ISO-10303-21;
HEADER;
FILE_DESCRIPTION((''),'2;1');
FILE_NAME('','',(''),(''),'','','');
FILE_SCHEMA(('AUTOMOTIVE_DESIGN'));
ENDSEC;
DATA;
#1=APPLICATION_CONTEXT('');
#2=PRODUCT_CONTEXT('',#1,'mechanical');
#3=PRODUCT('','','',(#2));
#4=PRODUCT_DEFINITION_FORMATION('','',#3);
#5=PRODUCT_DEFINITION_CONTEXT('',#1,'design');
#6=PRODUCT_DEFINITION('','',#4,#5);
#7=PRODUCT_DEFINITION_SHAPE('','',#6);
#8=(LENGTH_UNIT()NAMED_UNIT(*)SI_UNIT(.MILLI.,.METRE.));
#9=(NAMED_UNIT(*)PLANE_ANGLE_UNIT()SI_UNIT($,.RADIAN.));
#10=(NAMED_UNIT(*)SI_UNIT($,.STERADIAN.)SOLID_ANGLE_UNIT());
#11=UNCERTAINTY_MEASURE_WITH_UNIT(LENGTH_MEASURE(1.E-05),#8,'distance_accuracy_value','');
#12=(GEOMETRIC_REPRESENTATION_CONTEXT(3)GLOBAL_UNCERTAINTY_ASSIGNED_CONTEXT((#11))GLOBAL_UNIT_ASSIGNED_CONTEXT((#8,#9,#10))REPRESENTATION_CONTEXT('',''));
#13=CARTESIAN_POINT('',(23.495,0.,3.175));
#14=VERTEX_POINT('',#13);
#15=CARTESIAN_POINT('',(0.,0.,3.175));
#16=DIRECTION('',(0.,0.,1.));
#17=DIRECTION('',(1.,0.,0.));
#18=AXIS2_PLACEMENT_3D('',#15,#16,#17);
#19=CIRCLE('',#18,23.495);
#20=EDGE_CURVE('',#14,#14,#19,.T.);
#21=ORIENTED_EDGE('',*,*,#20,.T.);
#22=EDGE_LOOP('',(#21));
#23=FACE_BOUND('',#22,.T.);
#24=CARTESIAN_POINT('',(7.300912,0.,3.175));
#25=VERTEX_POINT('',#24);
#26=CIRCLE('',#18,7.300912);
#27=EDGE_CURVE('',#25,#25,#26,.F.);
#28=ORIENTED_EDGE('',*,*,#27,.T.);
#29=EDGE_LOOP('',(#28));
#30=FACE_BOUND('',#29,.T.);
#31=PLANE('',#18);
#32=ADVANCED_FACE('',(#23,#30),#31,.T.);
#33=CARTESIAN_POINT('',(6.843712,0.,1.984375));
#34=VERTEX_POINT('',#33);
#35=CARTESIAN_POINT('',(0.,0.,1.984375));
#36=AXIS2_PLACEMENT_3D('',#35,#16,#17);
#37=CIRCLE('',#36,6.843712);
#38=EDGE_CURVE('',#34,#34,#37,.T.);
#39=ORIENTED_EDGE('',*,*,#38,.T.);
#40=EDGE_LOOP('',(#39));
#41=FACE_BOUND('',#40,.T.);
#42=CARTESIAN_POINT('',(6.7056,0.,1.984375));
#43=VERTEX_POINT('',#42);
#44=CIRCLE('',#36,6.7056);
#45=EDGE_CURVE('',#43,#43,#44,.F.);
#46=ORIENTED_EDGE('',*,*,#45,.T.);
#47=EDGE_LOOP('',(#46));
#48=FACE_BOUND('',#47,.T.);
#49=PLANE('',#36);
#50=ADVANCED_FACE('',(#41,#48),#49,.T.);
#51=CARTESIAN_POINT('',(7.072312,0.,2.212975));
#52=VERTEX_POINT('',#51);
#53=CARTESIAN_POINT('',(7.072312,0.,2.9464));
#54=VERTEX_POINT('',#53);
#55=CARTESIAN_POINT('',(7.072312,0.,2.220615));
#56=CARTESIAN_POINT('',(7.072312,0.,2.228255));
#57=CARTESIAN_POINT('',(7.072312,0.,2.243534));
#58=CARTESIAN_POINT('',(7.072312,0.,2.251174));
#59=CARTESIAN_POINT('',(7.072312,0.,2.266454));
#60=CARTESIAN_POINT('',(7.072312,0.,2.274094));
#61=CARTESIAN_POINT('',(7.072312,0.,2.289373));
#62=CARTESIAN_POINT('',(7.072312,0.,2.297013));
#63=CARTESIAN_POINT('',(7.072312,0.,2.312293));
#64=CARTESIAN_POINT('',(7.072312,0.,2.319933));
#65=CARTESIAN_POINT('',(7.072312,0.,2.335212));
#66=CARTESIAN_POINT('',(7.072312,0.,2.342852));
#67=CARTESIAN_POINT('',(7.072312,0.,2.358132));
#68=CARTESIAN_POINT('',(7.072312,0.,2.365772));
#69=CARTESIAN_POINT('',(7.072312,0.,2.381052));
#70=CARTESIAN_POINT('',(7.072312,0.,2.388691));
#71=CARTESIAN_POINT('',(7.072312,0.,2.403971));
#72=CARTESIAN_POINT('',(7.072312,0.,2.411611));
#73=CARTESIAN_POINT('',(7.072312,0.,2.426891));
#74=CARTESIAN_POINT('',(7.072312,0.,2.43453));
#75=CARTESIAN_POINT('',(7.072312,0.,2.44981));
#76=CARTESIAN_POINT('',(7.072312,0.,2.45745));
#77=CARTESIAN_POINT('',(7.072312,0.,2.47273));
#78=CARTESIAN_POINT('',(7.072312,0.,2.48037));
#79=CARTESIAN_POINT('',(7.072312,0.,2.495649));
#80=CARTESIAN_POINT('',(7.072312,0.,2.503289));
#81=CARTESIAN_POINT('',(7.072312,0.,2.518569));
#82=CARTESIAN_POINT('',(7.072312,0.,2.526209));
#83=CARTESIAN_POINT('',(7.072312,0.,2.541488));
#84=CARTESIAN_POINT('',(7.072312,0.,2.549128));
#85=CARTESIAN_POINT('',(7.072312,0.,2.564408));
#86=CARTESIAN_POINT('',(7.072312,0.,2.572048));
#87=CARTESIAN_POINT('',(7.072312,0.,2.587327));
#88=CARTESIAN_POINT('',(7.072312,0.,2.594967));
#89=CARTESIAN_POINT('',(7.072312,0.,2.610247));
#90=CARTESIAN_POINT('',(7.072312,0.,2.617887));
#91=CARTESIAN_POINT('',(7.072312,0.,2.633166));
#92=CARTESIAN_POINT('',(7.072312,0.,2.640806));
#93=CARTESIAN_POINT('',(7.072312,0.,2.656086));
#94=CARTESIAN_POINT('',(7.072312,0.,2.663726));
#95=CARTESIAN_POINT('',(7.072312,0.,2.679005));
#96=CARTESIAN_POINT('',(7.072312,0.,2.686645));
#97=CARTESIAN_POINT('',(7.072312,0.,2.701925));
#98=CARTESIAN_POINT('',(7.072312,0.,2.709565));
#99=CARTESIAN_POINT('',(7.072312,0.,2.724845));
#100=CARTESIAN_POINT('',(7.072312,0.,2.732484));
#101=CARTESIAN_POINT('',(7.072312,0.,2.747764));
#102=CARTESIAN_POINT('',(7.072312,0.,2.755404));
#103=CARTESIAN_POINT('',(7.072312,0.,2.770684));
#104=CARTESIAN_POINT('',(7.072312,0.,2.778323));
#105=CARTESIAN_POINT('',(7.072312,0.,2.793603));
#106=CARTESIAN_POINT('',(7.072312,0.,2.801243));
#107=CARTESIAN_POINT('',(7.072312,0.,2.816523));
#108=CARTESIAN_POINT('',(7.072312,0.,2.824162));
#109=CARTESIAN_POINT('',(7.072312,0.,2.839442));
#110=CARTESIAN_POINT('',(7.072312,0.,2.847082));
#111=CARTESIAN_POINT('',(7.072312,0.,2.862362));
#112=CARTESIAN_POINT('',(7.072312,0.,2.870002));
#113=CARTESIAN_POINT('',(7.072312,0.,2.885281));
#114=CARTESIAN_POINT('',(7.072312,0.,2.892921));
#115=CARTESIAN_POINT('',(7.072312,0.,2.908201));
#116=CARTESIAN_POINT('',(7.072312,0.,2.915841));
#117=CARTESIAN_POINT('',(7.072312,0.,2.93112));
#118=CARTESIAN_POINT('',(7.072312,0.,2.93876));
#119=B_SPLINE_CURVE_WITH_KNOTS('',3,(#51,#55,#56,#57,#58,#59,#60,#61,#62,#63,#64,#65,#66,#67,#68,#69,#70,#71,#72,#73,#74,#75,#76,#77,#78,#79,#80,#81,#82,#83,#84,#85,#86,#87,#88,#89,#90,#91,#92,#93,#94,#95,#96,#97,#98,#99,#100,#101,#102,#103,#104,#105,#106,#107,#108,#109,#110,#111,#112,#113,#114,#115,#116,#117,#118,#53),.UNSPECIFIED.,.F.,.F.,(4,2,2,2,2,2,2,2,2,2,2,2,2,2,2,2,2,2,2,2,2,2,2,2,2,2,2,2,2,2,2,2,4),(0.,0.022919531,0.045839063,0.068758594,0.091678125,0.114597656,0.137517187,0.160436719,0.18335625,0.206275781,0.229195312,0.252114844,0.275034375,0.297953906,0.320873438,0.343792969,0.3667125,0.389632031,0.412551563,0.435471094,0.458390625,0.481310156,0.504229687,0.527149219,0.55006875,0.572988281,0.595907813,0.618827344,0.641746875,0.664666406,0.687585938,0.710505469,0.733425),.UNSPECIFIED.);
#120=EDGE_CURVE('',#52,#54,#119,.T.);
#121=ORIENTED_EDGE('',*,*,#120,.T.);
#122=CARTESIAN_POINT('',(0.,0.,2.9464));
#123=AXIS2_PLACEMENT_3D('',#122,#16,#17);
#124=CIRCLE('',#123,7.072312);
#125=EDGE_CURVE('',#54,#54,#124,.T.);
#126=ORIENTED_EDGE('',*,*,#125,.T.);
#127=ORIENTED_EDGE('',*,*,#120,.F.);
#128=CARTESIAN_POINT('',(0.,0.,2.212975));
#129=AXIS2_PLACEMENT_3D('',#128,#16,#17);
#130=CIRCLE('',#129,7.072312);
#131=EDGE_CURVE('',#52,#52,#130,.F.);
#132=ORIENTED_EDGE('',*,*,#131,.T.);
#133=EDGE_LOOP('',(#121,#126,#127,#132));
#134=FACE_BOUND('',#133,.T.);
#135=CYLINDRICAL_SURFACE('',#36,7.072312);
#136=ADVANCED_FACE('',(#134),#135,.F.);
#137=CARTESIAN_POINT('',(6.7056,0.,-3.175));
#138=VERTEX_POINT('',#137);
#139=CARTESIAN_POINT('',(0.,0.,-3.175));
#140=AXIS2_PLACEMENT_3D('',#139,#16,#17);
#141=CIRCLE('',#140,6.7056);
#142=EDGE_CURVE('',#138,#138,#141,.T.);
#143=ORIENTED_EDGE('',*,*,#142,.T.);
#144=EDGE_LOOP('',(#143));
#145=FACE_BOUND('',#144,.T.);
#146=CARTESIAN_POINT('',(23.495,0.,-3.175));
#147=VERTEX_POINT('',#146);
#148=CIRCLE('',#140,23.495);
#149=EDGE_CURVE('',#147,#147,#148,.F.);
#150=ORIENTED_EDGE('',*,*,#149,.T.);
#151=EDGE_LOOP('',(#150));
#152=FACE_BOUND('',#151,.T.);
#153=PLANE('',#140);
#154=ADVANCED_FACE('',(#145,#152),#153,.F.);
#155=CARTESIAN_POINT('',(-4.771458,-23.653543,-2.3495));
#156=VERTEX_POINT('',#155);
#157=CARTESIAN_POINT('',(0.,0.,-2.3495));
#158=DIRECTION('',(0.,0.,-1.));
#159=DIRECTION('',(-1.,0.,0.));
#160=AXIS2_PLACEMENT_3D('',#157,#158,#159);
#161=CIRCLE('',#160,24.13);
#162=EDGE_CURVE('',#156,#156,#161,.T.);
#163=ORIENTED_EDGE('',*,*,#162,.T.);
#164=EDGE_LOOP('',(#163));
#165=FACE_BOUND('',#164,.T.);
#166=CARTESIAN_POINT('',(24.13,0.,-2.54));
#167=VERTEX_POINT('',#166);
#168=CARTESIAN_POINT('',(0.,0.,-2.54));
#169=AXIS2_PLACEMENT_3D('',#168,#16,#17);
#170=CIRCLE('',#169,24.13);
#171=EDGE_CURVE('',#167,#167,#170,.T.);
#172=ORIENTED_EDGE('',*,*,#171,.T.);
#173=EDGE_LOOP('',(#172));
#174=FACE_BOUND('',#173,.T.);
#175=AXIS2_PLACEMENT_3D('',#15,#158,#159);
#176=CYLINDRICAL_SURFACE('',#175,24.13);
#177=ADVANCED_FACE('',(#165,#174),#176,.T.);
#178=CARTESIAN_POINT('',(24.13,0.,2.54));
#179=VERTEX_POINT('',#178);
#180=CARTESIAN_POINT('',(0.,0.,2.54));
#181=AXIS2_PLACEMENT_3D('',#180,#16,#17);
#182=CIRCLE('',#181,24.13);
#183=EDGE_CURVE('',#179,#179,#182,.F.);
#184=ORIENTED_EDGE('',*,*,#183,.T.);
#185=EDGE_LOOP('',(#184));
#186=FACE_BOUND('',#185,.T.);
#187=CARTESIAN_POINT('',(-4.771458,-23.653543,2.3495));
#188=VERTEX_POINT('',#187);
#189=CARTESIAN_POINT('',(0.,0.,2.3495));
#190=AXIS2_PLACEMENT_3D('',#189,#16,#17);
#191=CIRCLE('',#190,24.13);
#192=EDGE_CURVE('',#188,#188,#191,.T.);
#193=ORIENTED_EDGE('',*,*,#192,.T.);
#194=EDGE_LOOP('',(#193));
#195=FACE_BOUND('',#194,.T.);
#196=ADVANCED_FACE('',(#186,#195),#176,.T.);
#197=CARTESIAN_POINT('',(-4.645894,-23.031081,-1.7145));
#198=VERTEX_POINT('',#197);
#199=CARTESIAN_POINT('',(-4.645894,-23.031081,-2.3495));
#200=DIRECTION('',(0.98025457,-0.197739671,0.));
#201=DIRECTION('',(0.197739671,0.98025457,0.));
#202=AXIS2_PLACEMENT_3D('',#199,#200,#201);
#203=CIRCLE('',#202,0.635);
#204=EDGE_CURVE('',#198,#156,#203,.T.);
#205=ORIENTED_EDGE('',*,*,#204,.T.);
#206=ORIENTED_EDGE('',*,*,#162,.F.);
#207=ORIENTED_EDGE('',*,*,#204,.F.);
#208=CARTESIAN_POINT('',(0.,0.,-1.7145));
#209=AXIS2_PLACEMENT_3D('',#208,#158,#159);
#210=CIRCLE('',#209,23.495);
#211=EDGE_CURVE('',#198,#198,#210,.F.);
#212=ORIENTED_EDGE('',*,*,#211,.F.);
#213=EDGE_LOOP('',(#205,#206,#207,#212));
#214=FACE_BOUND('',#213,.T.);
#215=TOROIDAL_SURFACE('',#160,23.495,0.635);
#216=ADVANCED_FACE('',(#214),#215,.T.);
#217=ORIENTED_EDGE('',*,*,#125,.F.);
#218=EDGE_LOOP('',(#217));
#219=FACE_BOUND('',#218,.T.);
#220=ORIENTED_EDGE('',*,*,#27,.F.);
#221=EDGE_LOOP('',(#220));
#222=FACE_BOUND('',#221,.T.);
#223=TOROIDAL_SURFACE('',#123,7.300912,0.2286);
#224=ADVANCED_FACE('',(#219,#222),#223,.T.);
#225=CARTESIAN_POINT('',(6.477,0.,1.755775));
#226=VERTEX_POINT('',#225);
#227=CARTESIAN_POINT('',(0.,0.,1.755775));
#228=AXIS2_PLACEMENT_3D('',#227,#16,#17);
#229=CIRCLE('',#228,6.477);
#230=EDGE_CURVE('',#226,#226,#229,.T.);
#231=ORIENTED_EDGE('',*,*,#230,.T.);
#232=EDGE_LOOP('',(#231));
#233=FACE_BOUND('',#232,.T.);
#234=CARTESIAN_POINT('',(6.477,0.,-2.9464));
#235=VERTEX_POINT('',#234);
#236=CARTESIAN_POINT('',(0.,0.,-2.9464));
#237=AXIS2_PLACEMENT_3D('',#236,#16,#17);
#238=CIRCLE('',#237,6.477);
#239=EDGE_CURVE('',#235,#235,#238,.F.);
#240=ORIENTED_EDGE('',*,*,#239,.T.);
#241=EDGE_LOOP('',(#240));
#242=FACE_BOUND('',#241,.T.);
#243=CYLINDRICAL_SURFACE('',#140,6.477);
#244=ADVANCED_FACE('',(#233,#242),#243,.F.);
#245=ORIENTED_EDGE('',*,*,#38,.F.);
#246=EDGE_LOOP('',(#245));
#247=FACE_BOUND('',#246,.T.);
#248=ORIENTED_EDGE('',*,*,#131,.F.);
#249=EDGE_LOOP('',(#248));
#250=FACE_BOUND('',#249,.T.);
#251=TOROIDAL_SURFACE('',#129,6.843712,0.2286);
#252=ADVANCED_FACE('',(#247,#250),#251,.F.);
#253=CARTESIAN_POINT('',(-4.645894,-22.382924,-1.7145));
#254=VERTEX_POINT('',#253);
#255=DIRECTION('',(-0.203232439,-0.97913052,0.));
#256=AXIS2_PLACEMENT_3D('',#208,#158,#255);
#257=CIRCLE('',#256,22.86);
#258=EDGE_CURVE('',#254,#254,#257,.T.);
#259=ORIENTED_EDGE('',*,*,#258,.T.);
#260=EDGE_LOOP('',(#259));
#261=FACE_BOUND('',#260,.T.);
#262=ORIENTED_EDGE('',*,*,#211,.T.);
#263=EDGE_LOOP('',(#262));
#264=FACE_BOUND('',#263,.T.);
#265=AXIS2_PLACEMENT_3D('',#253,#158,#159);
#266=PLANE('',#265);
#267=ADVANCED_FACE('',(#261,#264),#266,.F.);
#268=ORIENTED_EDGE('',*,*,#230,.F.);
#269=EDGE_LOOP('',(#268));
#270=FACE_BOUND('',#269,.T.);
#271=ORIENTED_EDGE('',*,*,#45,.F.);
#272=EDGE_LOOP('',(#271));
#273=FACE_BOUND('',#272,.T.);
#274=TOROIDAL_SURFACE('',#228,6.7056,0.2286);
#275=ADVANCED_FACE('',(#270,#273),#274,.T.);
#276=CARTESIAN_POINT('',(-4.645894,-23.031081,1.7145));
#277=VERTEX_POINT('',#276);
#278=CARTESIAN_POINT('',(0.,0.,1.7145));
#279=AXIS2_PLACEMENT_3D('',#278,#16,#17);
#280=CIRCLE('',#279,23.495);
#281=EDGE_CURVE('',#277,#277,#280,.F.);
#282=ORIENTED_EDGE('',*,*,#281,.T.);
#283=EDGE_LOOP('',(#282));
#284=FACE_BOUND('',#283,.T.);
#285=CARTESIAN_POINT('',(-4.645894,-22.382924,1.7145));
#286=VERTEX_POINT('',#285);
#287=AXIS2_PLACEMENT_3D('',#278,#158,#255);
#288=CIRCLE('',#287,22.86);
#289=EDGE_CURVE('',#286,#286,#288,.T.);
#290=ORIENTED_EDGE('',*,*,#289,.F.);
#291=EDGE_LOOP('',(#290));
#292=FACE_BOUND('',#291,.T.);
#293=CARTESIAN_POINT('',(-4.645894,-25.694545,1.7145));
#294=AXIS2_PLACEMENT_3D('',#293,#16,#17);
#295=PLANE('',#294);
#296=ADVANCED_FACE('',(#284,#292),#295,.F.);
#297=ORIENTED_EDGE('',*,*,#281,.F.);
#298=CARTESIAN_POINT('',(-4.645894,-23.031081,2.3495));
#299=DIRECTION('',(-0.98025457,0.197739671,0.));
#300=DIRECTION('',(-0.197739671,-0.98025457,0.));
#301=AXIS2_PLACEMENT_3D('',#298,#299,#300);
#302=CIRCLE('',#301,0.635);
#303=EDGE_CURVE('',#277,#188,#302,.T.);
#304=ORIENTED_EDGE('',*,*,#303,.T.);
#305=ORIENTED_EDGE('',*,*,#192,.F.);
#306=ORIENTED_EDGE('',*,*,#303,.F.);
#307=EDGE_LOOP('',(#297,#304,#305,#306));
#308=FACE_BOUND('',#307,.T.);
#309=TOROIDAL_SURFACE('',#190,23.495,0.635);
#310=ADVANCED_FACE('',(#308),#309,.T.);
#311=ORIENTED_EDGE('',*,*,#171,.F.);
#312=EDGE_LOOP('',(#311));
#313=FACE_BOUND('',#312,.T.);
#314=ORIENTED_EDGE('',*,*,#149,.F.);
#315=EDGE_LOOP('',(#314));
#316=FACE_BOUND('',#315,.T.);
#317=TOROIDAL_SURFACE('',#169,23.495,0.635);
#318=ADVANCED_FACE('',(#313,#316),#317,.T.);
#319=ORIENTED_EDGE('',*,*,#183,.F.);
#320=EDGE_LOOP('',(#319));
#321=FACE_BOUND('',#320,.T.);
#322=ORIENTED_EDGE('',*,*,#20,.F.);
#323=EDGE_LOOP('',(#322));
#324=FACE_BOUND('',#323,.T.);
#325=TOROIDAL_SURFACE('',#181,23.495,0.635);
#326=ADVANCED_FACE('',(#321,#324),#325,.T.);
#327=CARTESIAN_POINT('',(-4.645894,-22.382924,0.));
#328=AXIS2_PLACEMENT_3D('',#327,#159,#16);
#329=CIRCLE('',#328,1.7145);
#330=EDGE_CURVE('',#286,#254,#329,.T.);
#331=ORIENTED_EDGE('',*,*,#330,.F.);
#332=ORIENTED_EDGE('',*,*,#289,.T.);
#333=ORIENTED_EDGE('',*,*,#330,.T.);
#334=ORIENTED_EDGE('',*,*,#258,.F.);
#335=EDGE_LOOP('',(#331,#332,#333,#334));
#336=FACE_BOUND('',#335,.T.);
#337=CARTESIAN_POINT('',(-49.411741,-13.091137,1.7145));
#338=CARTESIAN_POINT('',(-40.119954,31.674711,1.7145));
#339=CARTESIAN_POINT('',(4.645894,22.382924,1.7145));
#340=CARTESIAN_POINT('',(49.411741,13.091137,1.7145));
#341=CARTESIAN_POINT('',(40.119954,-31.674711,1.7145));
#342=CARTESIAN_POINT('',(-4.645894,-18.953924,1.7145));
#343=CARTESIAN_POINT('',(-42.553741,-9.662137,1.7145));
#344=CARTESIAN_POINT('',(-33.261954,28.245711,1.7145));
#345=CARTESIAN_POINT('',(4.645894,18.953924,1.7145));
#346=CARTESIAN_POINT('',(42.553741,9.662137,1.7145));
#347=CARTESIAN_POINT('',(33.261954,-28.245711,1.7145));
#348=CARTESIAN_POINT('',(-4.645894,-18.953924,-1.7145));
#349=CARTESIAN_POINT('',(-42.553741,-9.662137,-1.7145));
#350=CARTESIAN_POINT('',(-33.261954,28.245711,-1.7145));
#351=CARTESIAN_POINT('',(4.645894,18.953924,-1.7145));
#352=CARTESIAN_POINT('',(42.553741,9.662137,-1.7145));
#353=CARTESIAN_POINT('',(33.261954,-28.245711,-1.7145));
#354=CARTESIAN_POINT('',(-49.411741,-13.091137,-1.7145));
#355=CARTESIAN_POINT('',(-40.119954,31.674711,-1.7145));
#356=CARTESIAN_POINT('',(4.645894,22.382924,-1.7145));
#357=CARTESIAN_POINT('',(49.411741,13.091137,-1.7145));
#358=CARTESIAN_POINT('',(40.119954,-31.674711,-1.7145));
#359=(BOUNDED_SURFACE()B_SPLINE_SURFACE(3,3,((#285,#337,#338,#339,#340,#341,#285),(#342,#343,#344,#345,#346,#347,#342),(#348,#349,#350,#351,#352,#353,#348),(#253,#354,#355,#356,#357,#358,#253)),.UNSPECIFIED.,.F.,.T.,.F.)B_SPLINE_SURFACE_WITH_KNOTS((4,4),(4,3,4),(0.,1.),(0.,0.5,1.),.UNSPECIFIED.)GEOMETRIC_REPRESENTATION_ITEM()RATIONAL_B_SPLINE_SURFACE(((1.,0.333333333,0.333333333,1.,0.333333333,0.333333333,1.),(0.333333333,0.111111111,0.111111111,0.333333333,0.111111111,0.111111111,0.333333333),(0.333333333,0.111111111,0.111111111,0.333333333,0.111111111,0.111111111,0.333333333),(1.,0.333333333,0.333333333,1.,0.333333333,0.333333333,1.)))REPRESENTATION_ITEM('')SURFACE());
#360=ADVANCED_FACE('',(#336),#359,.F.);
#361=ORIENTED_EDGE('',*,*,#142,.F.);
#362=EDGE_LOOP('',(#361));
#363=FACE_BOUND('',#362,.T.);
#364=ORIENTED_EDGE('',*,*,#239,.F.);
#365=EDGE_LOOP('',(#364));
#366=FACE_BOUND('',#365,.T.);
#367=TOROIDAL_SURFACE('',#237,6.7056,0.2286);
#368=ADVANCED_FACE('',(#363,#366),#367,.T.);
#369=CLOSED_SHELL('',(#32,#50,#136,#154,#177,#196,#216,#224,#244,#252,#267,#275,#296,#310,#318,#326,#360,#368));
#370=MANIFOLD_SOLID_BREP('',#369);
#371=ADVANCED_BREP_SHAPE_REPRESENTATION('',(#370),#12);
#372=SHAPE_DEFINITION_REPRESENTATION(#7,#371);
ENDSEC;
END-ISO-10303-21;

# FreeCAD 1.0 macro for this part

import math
import FreeCAD as App
import Part
import Sketcher
Q = App.Units.Quantity


def edges_at(feature, points):
    """Names of the edges that pass closest to the given points."""
    edges = feature.Shape.Edges
    near = lambda p: min(range(len(edges)), key=lambda i: edges[i].distToShape(Part.Vertex(*p))[0])
    return sorted({f"Edge{near(p) + 1}" for p in points})

doc = App.newDocument("Part")
body = doc.addObject("PartDesign::Body", "Body")

# Sketch on XY plane
sketch1 = body.newObject("Sketcher::SketchObject", "Sketch")
sketch1.AttachmentSupport = (doc.getObject("XY_Plane"), [""])
sketch1.MapMode = "FlatFace"
sketch1.addGeometry(Part.Circle(App.Vector(0, 0, 0), App.Vector(0, 0, 1), 24), False)
sketch1.addConstraint(Sketcher.Constraint("Coincident", 0, 3, -1, 1))
sketch1.addConstraint(Sketcher.Constraint("Diameter", 0, Q("1.9 in")))
pad1 = body.newObject("PartDesign::Pad", "Pad")
pad1.Profile = sketch1
pad1.Length = Q("0.25 in")
pad1.Midplane = True

# Sketch on YZ plane
sketch2 = body.newObject("Sketcher::SketchObject", "Sketch001")
sketch2.AttachmentSupport = (doc.getObject("YZ_Plane"), [""])
sketch2.MapMode = "FlatFace"
sketch2.AttachmentOffset = App.Placement(App.Vector(0, 0, -4.645894), App.Rotation())
sketch2.addGeometry(Part.LineSegment(App.Vector(-22.4, -1.7, 0), App.Vector(-25.7, -1.7, 0)), False)
sketch2.addGeometry(Part.LineSegment(App.Vector(-25.7, -1.7, 0), App.Vector(-25.7, 1.7, 0)), False)
sketch2.addGeometry(Part.LineSegment(App.Vector(-25.7, 1.7, 0), App.Vector(-22.4, 1.7, 0)), False)
sketch2.addGeometry(Part.ArcOfCircle(Part.Circle(App.Vector(-22.4, 0, 0), App.Vector(0, 0, 1), 1.7), math.radians(-90), math.radians(90)), False)
sketch2.addConstraint(Sketcher.Constraint("Coincident", 0, 2, 1, 1))
sketch2.addConstraint(Sketcher.Constraint("Coincident", 1, 2, 2, 1))
sketch2.addConstraint(Sketcher.Constraint("Tangent", 2, 2, 3, 2))
sketch2.addConstraint(Sketcher.Constraint("Tangent", 3, 1, 0, 1))
sketch2.addConstraint(Sketcher.Constraint("Horizontal", 0))
sketch2.addConstraint(Sketcher.Constraint("Vertical", 1))
sketch2.addConstraint(Sketcher.Constraint("Horizontal", 2))
sketch2.addConstraint(Sketcher.Constraint("PointOnObject", 3, 3, -1))
sketch2.addConstraint(Sketcher.Constraint("Radius", 3, Q("0.0675 in")))
sketch2.addConstraint(Sketcher.Constraint("DistanceX", 0, 2, 0, 1, 3.311621))
sketch2.addConstraint(Sketcher.Constraint("DistanceX", 3, 3, -1, 1, 22.382924))

# Sketch on XY plane
sketch3 = body.newObject("Sketcher::SketchObject", "Sketch002")
sketch3.AttachmentSupport = (doc.getObject("XY_Plane"), [""])
sketch3.MapMode = "FlatFace"
sketch3.addGeometry(Part.Circle(App.Vector(0, 0, 0), App.Vector(0, 0, 1), 23), False)
sketch3.addConstraint(Sketcher.Constraint("Coincident", 0, 3, -1, 1))
sketch3.addConstraint(Sketcher.Constraint("Diameter", 0, Q("1.8 in")))
doc.recompute()

subtractivepipe = body.newObject("PartDesign::SubtractivePipe", "SubtractivePipe")
subtractivepipe.Profile = sketch2
subtractivepipe.Spine = (sketch3, ["Edge1"])

# Sketch on XY plane
sketch4 = body.newObject("Sketcher::SketchObject", "Sketch003")
sketch4.AttachmentSupport = (doc.getObject("XY_Plane"), [""])
sketch4.MapMode = "FlatFace"
sketch4.addGeometry(Part.Circle(App.Vector(0, 0, 0), App.Vector(0, 0, 1), 4.8), False)
sketch4.addConstraint(Sketcher.Constraint("Coincident", 0, 3, -1, 1))
sketch4.addConstraint(Sketcher.Constraint("Diameter", 0, Q("0.375 in")))
pocket1 = body.newObject("PartDesign::Pocket", "Pocket")
pocket1.Profile = sketch4
pocket1.Length = Q("0.125 in")
pocket1.Midplane = True

# Sketch on XY plane
sketch5 = body.newObject("Sketcher::SketchObject", "Sketch004")
sketch5.AttachmentSupport = (doc.getObject("XY_Plane"), [""])
sketch5.MapMode = "FlatFace"
sketch5.AttachmentOffset = App.Placement(App.Vector(0, 0, 0.125 * 25.4), App.Rotation())
sketch5.addGeometry(Part.Circle(App.Vector(0, 0, 0), App.Vector(0, 0, 1), 6), False)
sketch5.addConstraint(Sketcher.Constraint("Coincident", 0, 3, -1, 1))
sketch5.addConstraint(Sketcher.Constraint("Diameter", 0, Q("0.51 in")))
pocket2 = body.newObject("PartDesign::Pocket", "Pocket001")
pocket2.Profile = sketch5
pocket2.Type = "ThroughAll"

# Sketch on XY plane
sketch6 = body.newObject("Sketcher::SketchObject", "Sketch005")
sketch6.AttachmentSupport = (doc.getObject("XY_Plane"), [""])
sketch6.MapMode = "FlatFace"
sketch6.AttachmentOffset = App.Placement(App.Vector(0, 0, 0.125 * 25.4), App.Rotation())
sketch6.addGeometry(Part.Circle(App.Vector(0, 0, 0), App.Vector(0, 0, 1), 7), False)
sketch6.addConstraint(Sketcher.Constraint("Coincident", 0, 3, -1, 1))
sketch6.addConstraint(Sketcher.Constraint("Diameter", 0, 14.144625))
pocket3 = body.newObject("PartDesign::Pocket", "Pocket002")
pocket3.Profile = sketch6
pocket3.Length = Q("0.046875 in")
doc.recompute()

fillet = body.newObject("PartDesign::Fillet", "Fillet")
fillet.Base = (pocket3, edges_at(pocket3, [
    (-6.477, 0, -3.175),
    (-7.072, 0, 3.175),
    (-7.072, 0, 1.984),
    (-6.477, 0, 1.984),
]))
fillet.Radius = Q("0.009 in")
doc.recompute()

fillet2 = body.newObject("PartDesign::Fillet", "Fillet001")
fillet2.Base = (fillet, edges_at(fillet, [
    (-24.13, 0, -3.175),
    (-24.13, 0, 3.175),
    (0.132, -24.13, 1.714),
    (-0.132, 24.13, -1.714),
]))
fillet2.Radius = Q("0.025 in")

doc.recompute()
